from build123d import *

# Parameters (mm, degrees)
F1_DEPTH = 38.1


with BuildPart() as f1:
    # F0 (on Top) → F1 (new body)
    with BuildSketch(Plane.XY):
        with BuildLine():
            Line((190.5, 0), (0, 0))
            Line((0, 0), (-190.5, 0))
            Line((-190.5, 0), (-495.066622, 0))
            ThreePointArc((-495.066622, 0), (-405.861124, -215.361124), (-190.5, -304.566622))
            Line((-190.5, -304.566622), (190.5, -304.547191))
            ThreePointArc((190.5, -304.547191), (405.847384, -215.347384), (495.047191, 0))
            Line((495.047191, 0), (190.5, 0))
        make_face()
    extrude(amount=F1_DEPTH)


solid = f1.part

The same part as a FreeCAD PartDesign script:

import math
import FreeCAD as App
import Part
import Sketcher
Q = App.Units.Quantity

doc = App.newDocument("Part")
body = doc.addObject("PartDesign::Body", "Body")

sketch1 = doc.addObject("Sketcher::SketchObject", "Sketch")
body.addObject(sketch1)
sketch1.AttachmentSupport = (doc.XY_Plane, [""])
sketch1.MapMode = "FlatFace"
sketch1.addGeometry(Part.ArcOfCircle(Part.Circle(App.Vector(-191, 0, 0), App.Vector(0, 0, 1), 305), math.radians(180), math.radians(270)), False)
sketch1.addGeometry(Part.LineSegment(App.Vector(-190, -305, 0), App.Vector(190, -305, 0)), False)
sketch1.addGeometry(Part.ArcOfCircle(Part.Circle(App.Vector(191, 0, 0), App.Vector(0, 0, 1), 305), math.radians(-90), math.radians(0)), False)
sketch1.addGeometry(Part.LineSegment(App.Vector(495, 0, 0), App.Vector(-495, 0, 0)), False)
sketch1.addConstraint(Sketcher.Constraint("Coincident", 0, 2, 1, 1))
sketch1.addConstraint(Sketcher.Constraint("Coincident", 1, 2, 2, 1))
sketch1.addConstraint(Sketcher.Constraint("Coincident", 2, 2, 3, 1))
sketch1.addConstraint(Sketcher.Constraint("Coincident", 3, 2, 0, 1))
sketch1.addConstraint(Sketcher.Constraint("Horizontal", 3))
sketch1.addConstraint(Sketcher.Constraint("Symmetric", 0, 3, 2, 3, -1, 1))
sketch1.addConstraint(Sketcher.Constraint("PointOnObject", 0, 3, -1))
sketch1.addConstraint(Sketcher.Constraint("PointOnObject", 2, 2, -1))
sketch1.addConstraint(Sketcher.Constraint("Vertical", 2, 3, 1, 2))
sketch1.addConstraint(Sketcher.Constraint("Distance", 1, Q("15 in")))
sketch1.addConstraint(Sketcher.Constraint("DistanceX", 0, 3, 2, 3, Q("15 in")))
sketch1.addConstraint(Sketcher.Constraint("Radius", 0, 304.566621))
sketch1.addConstraint(Sketcher.Constraint("Radius", 2, 304.547191))
pad1 = doc.addObject("PartDesign::Pad", "Pad")
body.addObject(pad1)
pad1.Profile = sketch1
pad1.Length = Q("1.5 in")

doc.recompute()
